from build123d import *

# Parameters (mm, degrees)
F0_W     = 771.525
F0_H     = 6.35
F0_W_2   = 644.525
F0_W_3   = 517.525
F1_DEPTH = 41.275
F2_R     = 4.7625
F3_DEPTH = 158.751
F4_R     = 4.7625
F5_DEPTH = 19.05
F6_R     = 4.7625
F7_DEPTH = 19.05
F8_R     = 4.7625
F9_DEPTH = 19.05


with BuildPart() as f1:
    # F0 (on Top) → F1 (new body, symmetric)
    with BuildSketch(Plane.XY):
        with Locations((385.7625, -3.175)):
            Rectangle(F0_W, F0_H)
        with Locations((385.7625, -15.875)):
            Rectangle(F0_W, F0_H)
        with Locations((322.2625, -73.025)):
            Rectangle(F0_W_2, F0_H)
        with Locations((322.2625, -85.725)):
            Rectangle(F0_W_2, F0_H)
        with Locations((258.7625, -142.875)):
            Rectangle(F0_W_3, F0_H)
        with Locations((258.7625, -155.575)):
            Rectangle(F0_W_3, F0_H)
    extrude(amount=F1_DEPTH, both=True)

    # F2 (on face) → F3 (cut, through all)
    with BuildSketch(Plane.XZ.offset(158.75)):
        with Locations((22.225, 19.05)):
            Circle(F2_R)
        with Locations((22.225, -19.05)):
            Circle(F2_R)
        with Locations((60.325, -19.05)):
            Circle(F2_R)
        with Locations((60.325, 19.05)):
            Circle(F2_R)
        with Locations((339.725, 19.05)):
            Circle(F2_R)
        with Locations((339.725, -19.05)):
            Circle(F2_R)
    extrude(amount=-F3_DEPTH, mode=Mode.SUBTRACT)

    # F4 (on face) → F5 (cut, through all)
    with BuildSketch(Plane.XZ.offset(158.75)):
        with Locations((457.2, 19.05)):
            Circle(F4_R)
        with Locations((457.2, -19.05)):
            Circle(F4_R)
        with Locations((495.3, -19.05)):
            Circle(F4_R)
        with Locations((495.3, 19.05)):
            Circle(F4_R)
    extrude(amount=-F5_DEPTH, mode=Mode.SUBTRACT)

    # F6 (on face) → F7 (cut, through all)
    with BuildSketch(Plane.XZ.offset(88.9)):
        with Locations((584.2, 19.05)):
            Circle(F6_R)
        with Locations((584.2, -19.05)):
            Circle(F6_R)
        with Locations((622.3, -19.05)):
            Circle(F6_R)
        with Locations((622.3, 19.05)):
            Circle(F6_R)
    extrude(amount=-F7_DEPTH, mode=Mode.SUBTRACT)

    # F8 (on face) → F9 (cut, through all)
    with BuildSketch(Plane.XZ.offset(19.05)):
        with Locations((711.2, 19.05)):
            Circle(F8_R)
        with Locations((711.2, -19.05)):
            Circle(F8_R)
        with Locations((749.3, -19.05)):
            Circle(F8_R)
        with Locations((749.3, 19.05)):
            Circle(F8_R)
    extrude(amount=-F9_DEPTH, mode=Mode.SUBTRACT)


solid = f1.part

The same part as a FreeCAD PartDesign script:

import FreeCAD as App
import Part
import Sketcher

V = App.Vector
Q = App.Units.Quantity


def add_polygon(sketch, points):
    """Adds a closed chain of lines whose ends are joined by coincident constraints."""
    first, n = sketch.GeometryCount, len(points)
    for a, b in zip(points, points[1:] + points[:1]):
        sketch.addGeometry(Part.LineSegment(App.Vector(*a, 0), App.Vector(*b, 0)), False)
    for i in range(n):
        sketch.addConstraint(Sketcher.Constraint("Coincident", first + i, 2, first + (i + 1) % n, 1))

doc = App.newDocument("Part")
body = doc.addObject("PartDesign::Body", "Body")
body.AllowCompound = True

# Sketch on XY plane
sketch1 = doc.addObject("Sketcher::SketchObject", "Sketch")
body.addObject(sketch1)
sketch1.AttachmentSupport = (doc.XY_Plane, [""])
sketch1.MapMode = "FlatFace"
add_polygon(sketch1, [(0, 0), (0, -6.35), (771.525, -6.35), (771.525, 0)])  # lines 0-3
add_polygon(sketch1, [(0, -12.7), (0, -19.05), (771.525, -19.05), (771.525, -12.7)])  # lines 4-7
add_polygon(sketch1, [(0, -69.85), (0, -76.2), (644.525, -76.2), (644.525, -69.85)])  # lines 8-11
add_polygon(sketch1, [(0, -82.55), (0, -88.9), (644.525, -88.9), (644.525, -82.55)])  # lines 12-15
add_polygon(sketch1, [(0, -139.7), (0, -146.05), (517.525, -146.05), (517.525, -139.7)])  # lines 16-19
add_polygon(sketch1, [(0, -152.4), (0, -158.75), (517.525, -158.75), (517.525, -152.4)])  # lines 20-23
sketch1.addConstraint([
    Sketcher.Constraint("Vertical", 0),
    Sketcher.Constraint("Horizontal", 1),
    Sketcher.Constraint("Vertical", 2),
    Sketcher.Constraint("Horizontal", 3),
    Sketcher.Constraint("Vertical", 4),
    Sketcher.Constraint("Horizontal", 5),
    Sketcher.Constraint("Vertical", 6),
    Sketcher.Constraint("Horizontal", 7),
    Sketcher.Constraint("Vertical", 8),
    Sketcher.Constraint("Horizontal", 9),
    Sketcher.Constraint("Vertical", 10),
    Sketcher.Constraint("Horizontal", 11),
    Sketcher.Constraint("Vertical", 12),
    Sketcher.Constraint("Horizontal", 13),
    Sketcher.Constraint("Vertical", 14),
    Sketcher.Constraint("Horizontal", 15),
    Sketcher.Constraint("Vertical", 16),
    Sketcher.Constraint("Horizontal", 17),
    Sketcher.Constraint("Vertical", 18),
    Sketcher.Constraint("Horizontal", 19),
    Sketcher.Constraint("Vertical", 20),
    Sketcher.Constraint("Horizontal", 21),
    Sketcher.Constraint("Vertical", 22),
    Sketcher.Constraint("Horizontal", 23),
    Sketcher.Constraint("Coincident", 3, 2, -1, 1),
    Sketcher.Constraint("PointOnObject", 4, 2, -2),
    Sketcher.Constraint("PointOnObject", 8, 2, -2),
    Sketcher.Constraint("PointOnObject", 12, 2, -2),
    Sketcher.Constraint("PointOnObject", 16, 2, -2),
    Sketcher.Constraint("PointOnObject", 20, 2, -2),
    Sketcher.Constraint("Vertical", 2, 2, 5, 2),
    Sketcher.Constraint("Vertical", 10, 2, 13, 2),
    Sketcher.Constraint("Vertical", 18, 2, 21, 2),
    Sketcher.Constraint("Equal", 2, 4),
    Sketcher.Constraint("Equal", 6, 8),
    Sketcher.Constraint("Equal", 10, 12),
    Sketcher.Constraint("Equal", 14, 16),
    Sketcher.Constraint("Equal", 18, 20),
    Sketcher.Constraint("DistanceY", 8, 2, -1, 1, Q("3 in")),
    Sketcher.Constraint("DistanceY", 22, 2, -1, 1, Q("6 in")),
    Sketcher.Constraint("DistanceX", 9, 2, 5, 2, Q("5 in")),
    Sketcher.Constraint("DistanceY", 10, 2, 5, 2, Q("2 in")),
    Sketcher.Constraint("DistanceY", 12, 2, 7, 2, Q("3 in")),
    Sketcher.Constraint("DistanceY", 16, 2, 11, 2, Q("3 in")),
    Sketcher.Constraint("DistanceX", 17, 2, 13, 2, Q("5 in")),
    Sketcher.Constraint("DistanceY", 20, 2, 15, 2, Q("3 in")),
    Sketcher.Constraint("DistanceX", 1, 1, 1, 2, Q("30.375 in")),
])
pad1 = doc.addObject("PartDesign::Pad", "Pad")
body.addObject(pad1)
pad1.Profile = sketch1
pad1.Length = Q("3.25 in")
pad1.Midplane = True

# Sketch on XZ plane
sketch2 = doc.addObject("Sketcher::SketchObject", "Sketch001")
body.addObject(sketch2)
sketch2.AttachmentSupport = (doc.XZ_Plane, [""])
sketch2.MapMode = "FlatFace"
sketch2.AttachmentOffset = App.Placement(V(0, 0, 6.25 * 25.4), App.Rotation())
sketch2.addGeometry([
    Part.Circle(V(22.225, 19.05, 0), V(0, 0, 1), 4.7625),  # 0
    Part.Circle(V(22.225, -19.05, 0), V(0, 0, 1), 4.7625),  # 1
    Part.Circle(V(60.325, -19.05, 0), V(0, 0, 1), 4.7625),  # 2
    Part.Circle(V(60.325, 19.05, 0), V(0, 0, 1), 4.7625),  # 3
    Part.Circle(V(339.725, 19.05, 0), V(0, 0, 1), 4.7625),  # 4
    Part.Circle(V(339.725, -19.05, 0), V(0, 0, 1), 4.7625),  # 5
], False)
sketch2.addConstraint([
    Sketcher.Constraint("Equal", 0, 1),
    Sketcher.Constraint("Equal", 1, 2),
    Sketcher.Constraint("Equal", 2, 3),
    Sketcher.Constraint("Equal", 3, 4),
    Sketcher.Constraint("Equal", 4, 5),
    Sketcher.Constraint("Symmetric", 0, 3, 1, 3, -1),
    Sketcher.Constraint("Symmetric", 2, 3, 3, 3, -1),
    Sketcher.Constraint("Symmetric", 4, 3, 5, 3, -1),
    Sketcher.Constraint("Horizontal", 1, 3, 2, 3),
    Sketcher.Constraint("Horizontal", 3, 3, 4, 3),
    Sketcher.Constraint("Diameter", 0, Q("0.375 in")),
    Sketcher.Constraint("DistanceX", 3, 3, 4, 3, Q("11 in")),
    Sketcher.Constraint("DistanceY", 1, 3, 0, 3, Q("1.5 in")),
    Sketcher.Constraint("DistanceX", 1, 3, 2, 3, Q("1.5 in")),
    Sketcher.Constraint("DistanceX", -1, 1, 0, 3, Q("0.875 in")),
])
pocket1 = doc.addObject("PartDesign::Pocket", "Pocket")
body.addObject(pocket1)
pocket1.Profile = sketch2
pocket1.Type = "ThroughAll"

# Sketch on XZ plane
sketch3 = doc.addObject("Sketcher::SketchObject", "Sketch002")
body.addObject(sketch3)
sketch3.AttachmentSupport = (doc.XZ_Plane, [""])
sketch3.MapMode = "FlatFace"
sketch3.AttachmentOffset = App.Placement(V(0, 0, 6.25 * 25.4), App.Rotation())
sketch3.addGeometry([
    Part.Circle(V(457.2, 19.05, 0), V(0, 0, 1), 4.7625),
    Part.Circle(V(457.2, -19.05, 0), V(0, 0, 1), 4.7625),
    Part.Circle(V(495.3, -19.05, 0), V(0, 0, 1), 4.7625),
    Part.Circle(V(495.3, 19.05, 0), V(0, 0, 1), 4.7625),
], False)
sketch3.addConstraint([
    Sketcher.Constraint("Equal", 0, 1),
    Sketcher.Constraint("Equal", 1, 2),
    Sketcher.Constraint("Equal", 2, 3),
    Sketcher.Constraint("Symmetric", 0, 3, 1, 3, -1),
    Sketcher.Constraint("Symmetric", 2, 3, 3, 3, -1),
    Sketcher.Constraint("Horizontal", 1, 3, 2, 3),
    Sketcher.Constraint("Diameter", 0, Q("0.375 in")),
    Sketcher.Constraint("DistanceX", -1, 1, 0, 3, Q("18 in")),
    Sketcher.Constraint("DistanceX", -1, 1, 2, 3, Q("19.5 in")),
    Sketcher.Constraint("DistanceY", 1, 3, 0, 3, Q("1.5 in")),
])
pocket2 = doc.addObject("PartDesign::Pocket", "Pocket001")
body.addObject(pocket2)
pocket2.Profile = sketch3
pocket2.Length = Q("0.75 in")

# Sketch on XZ plane
sketch4 = doc.addObject("Sketcher::SketchObject", "Sketch003")
body.addObject(sketch4)
sketch4.AttachmentSupport = (doc.XZ_Plane, [""])
sketch4.MapMode = "FlatFace"
sketch4.AttachmentOffset = App.Placement(V(0, 0, 3.5 * 25.4), App.Rotation())
sketch4.addGeometry([
    Part.Circle(V(584.2, 19.05, 0), V(0, 0, 1), 4.7625),
    Part.Circle(V(584.2, -19.05, 0), V(0, 0, 1), 4.7625),
    Part.Circle(V(622.3, -19.05, 0), V(0, 0, 1), 4.7625),
    Part.Circle(V(622.3, 19.05, 0), V(0, 0, 1), 4.7625),
], False)
sketch4.addConstraint([
    Sketcher.Constraint("Equal", 0, 1),
    Sketcher.Constraint("Equal", 1, 2),
    Sketcher.Constraint("Equal", 2, 3),
    Sketcher.Constraint("Symmetric", 0, 3, 1, 3, -1),
    Sketcher.Constraint("Symmetric", 2, 3, 3, 3, -1),
    Sketcher.Constraint("Horizontal", 1, 3, 2, 3),
    Sketcher.Constraint("Diameter", 0, Q("0.375 in")),
    Sketcher.Constraint("DistanceX", -1, 1, 0, 3, Q("23 in")),
    Sketcher.Constraint("DistanceX", -1, 1, 2, 3, Q("24.5 in")),
    Sketcher.Constraint("DistanceY", 1, 3, 0, 3, Q("1.5 in")),
])
pocket3 = doc.addObject("PartDesign::Pocket", "Pocket002")
body.addObject(pocket3)
pocket3.Profile = sketch4
pocket3.Length = Q("0.75 in")

# Sketch on XZ plane
sketch5 = doc.addObject("Sketcher::SketchObject", "Sketch004")
body.addObject(sketch5)
sketch5.AttachmentSupport = (doc.XZ_Plane, [""])
sketch5.MapMode = "FlatFace"
sketch5.AttachmentOffset = App.Placement(V(0, 0, 0.75 * 25.4), App.Rotation())
sketch5.addGeometry([
    Part.Circle(V(711.2, 19.05, 0), V(0, 0, 1), 4.7625),
    Part.Circle(V(711.2, -19.05, 0), V(0, 0, 1), 4.7625),
    Part.Circle(V(749.3, -19.05, 0), V(0, 0, 1), 4.7625),
    Part.Circle(V(749.3, 19.05, 0), V(0, 0, 1), 4.7625),
], False)
sketch5.addConstraint([
    Sketcher.Constraint("Equal", 0, 1),
    Sketcher.Constraint("Equal", 1, 2),
    Sketcher.Constraint("Equal", 2, 3),
    Sketcher.Constraint("Symmetric", 0, 3, 1, 3, -1),
    Sketcher.Constraint("Symmetric", 2, 3, 3, 3, -1),
    Sketcher.Constraint("Horizontal", 1, 3, 2, 3),
    Sketcher.Constraint("Diameter", 0, Q("0.375 in")),
    Sketcher.Constraint("DistanceX", -1, 1, 0, 3, Q("28 in")),
    Sketcher.Constraint("DistanceX", -1, 1, 2, 3, Q("29.5 in")),
    Sketcher.Constraint("DistanceY", 1, 3, 0, 3, Q("1.5 in")),
])
pocket4 = doc.addObject("PartDesign::Pocket", "Pocket003")
body.addObject(pocket4)
pocket4.Profile = sketch5
pocket4.Type = "ThroughAll"

doc.recompute()
